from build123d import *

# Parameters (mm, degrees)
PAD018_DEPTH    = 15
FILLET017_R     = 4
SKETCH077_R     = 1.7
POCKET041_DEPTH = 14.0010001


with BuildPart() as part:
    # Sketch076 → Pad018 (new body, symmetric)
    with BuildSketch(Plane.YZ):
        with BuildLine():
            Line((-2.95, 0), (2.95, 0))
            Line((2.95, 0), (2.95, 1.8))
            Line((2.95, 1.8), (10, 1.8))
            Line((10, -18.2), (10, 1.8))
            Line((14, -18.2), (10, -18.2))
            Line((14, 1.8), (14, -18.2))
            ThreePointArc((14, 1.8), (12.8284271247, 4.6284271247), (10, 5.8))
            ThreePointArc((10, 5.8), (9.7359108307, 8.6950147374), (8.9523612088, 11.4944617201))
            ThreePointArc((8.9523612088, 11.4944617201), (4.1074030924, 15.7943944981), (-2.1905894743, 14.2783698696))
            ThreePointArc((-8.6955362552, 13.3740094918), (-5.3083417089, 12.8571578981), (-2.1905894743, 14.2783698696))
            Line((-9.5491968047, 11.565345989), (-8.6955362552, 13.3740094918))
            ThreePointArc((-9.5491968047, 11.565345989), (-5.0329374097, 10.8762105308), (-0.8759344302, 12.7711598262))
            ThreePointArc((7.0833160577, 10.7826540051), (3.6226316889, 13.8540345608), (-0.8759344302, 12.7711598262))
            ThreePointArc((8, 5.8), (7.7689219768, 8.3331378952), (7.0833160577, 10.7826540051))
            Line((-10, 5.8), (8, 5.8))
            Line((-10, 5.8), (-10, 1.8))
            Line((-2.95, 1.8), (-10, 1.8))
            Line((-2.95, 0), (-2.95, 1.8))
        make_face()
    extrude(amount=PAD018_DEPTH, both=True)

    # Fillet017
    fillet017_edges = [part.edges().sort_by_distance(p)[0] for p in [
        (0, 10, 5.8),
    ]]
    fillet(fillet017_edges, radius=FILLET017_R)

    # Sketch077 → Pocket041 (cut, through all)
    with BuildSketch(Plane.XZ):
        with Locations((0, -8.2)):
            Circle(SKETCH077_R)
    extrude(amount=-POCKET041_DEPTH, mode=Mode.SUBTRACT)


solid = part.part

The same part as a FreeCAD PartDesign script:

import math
import FreeCAD as App
import Part
import Sketcher

V = App.Vector
Q = App.Units.Quantity


def edges_at(feature, points):
    """Names of the edges that pass closest to the given points."""
    edges = feature.Shape.Edges
    near = lambda p: min(range(len(edges)), key=lambda i: edges[i].distToShape(Part.Vertex(*p))[0])
    return sorted({f"Edge{near(p) + 1}" for p in points})

doc = App.newDocument("Part")
body = doc.addObject("PartDesign::Body", "Body")

# Sketch on YZ plane
sketch1 = doc.addObject("Sketcher::SketchObject", "Sketch")
body.addObject(sketch1)
sketch1.AttachmentSupport = (doc.YZ_Plane, [""])
sketch1.MapMode = "FlatFace"
sketch1.addGeometry([
    Part.LineSegment(V(-2.95, 0, 0), V(2.95, 0, 0)),  # 0
    Part.LineSegment(V(2.95, 0, 0), V(2.95, 1.8, 0)),  # 1
    Part.LineSegment(V(2.95, 1.8, 0), V(10, 1.8, 0)),  # 2
    Part.LineSegment(V(10, 1.8, 0), V(10, -18.2, 0)),  # 3
    Part.LineSegment(V(10, -18.2, 0), V(14, -18.2, 0)),  # 4
    Part.LineSegment(V(14, -18.2, 0), V(14, 1.8, 0)),  # 5
    Part.ArcOfCircle(Part.Circle(V(10, 1.8, 0), V(0, 0, 1), 4), math.radians(0), math.radians(90)),  # 6
    Part.ArcOfCircle(Part.Circle(V(-6, 5.8, 0), V(0, 0, 1), 16), math.radians(0), math.radians(20.84885)),  # 7
    Part.ArcOfCircle(Part.Circle(V(2.410703, 9.003135, 0), V(0, 0, 1), 7), math.radians(20.84885), math.radians(131.096372)),  # 8
    Part.ArcOfCircle(Part.Circle(V(-6.134555, 18.8, 0), V(0, 0, 1), 6), math.radians(-115.266569), math.radians(-48.903628)),  # 9
    Part.LineSegment(V(-8.695536, 13.374009, 0), V(-9.549197, 11.565346, 0)),  # 10
    Part.ArcOfCircle(Part.Circle(V(-6.134555, 18.8, 0), V(0, 0, 1), 8), math.radians(-115.266569), math.radians(-48.903628)),  # 11
    Part.ArcOfCircle(Part.Circle(V(2.410703, 9.003135, 0), V(0, 0, 1), 5), math.radians(20.84885), math.radians(131.096372)),  # 12
    Part.ArcOfCircle(Part.Circle(V(-6, 5.8, 0), V(0, 0, 1), 14), math.radians(0), math.radians(20.84885)),  # 13
    Part.LineSegment(V(8, 5.8, 0), V(-10, 5.8, 0)),  # 14
    Part.LineSegment(V(-10, 5.8, 0), V(-10, 1.8, 0)),  # 15
    Part.LineSegment(V(-10, 1.8, 0), V(-2.95, 1.8, 0)),  # 16
    Part.LineSegment(V(-2.95, 1.8, 0), V(-2.95, 0, 0)),  # 17
], False)
sketch1.addConstraint([
    Sketcher.Constraint("Coincident", 0, 2, 1, 1),
    Sketcher.Constraint("Coincident", 1, 2, 2, 1),
    Sketcher.Constraint("Coincident", 2, 2, 3, 1),
    Sketcher.Constraint("Coincident", 3, 2, 4, 1),
    Sketcher.Constraint("Coincident", 4, 2, 5, 1),
    Sketcher.Constraint("Tangent", 5, 2, 6, 1),
    Sketcher.Constraint("Coincident", 6, 2, 7, 1),
    Sketcher.Constraint("Tangent", 7, 2, 8, 1),
    Sketcher.Constraint("Tangent", 8, 2, 9, 2),
    Sketcher.Constraint("Coincident", 9, 1, 10, 1),
    Sketcher.Constraint("Coincident", 10, 2, 11, 1),
    Sketcher.Constraint("Tangent", 11, 2, 12, 2),
    Sketcher.Constraint("Tangent", 12, 1, 13, 2),
    Sketcher.Constraint("Coincident", 13, 1, 14, 1),
    Sketcher.Constraint("Coincident", 14, 2, 15, 1),
    Sketcher.Constraint("Coincident", 15, 2, 16, 1),
    Sketcher.Constraint("Coincident", 16, 2, 17, 1),
    Sketcher.Constraint("Coincident", 17, 2, 0, 1),
    Sketcher.Constraint("Horizontal", 0),
    Sketcher.Constraint("Vertical", 1),
    Sketcher.Constraint("Horizontal", 2),
    Sketcher.Constraint("Vertical", 3),
    Sketcher.Constraint("Horizontal", 4),
    Sketcher.Constraint("Vertical", 5),
    Sketcher.Constraint("Horizontal", 14),
    Sketcher.Constraint("Vertical", 15),
    Sketcher.Constraint("Horizontal", 16),
    Sketcher.Constraint("Vertical", 17),
    Sketcher.Constraint("Coincident", 11, 3, 9, 3),
    Sketcher.Constraint("Coincident", 12, 3, 8, 3),
    Sketcher.Constraint("Coincident", 13, 3, 7, 3),
    Sketcher.Constraint("Coincident", 2, 2, 6, 3),
    Sketcher.Constraint("Symmetric", 0, 2, 17, 2, -1, 1),
    Sketcher.Constraint("Symmetric", 6, 2, 14, 2, -2),
    Sketcher.Constraint("Symmetric", 2, 2, 15, 2, -2),
    Sketcher.Constraint("Horizontal", 13, 3, 6, 2),
    Sketcher.Constraint("Radius", 6, Q("4 mm")),
    Sketcher.Constraint("Radius", 7, Q("16 mm")),
    Sketcher.Constraint("Radius", 8, Q("7 mm")),
    Sketcher.Constraint("Radius", 9, Q("6 mm")),
    Sketcher.Constraint("Radius", 11, Q("8 mm")),
    Sketcher.Constraint("DistanceX", 14, 2, 14, 1, Q("18 mm")),
    Sketcher.Constraint("DistanceY", 3, 2, 3, 1, Q("20 mm")),
    Sketcher.Constraint("DistanceX", 0, 1, 0, 2, Q("5.9 mm")),
    Sketcher.Constraint("DistanceY", 1, 1, 1, 2, Q("1.8 mm")),
    Sketcher.Constraint("DistanceY", 7, 3, 9, 3, Q("13 mm")),
    Sketcher.Constraint("DistanceX", 9, 1, 11, 2, Q("7.819602 mm")),
    Sketcher.Constraint("DistanceX", -1, 1, 7, 2, Q("8.952361 mm")),
    Sketcher.Constraint("DistanceX", 10, 2, 9, 1, Q("0.853661 mm")),
])
pad1 = doc.addObject("PartDesign::Pad", "Pad")
body.addObject(pad1)
pad1.Profile = sketch1
pad1.Length = 30
pad1.Midplane = True
doc.recompute()

fillet = doc.addObject("PartDesign::Fillet", "Fillet")
body.addObject(fillet)
fillet.Base = (pad1, edges_at(pad1, [(0, 10, 5.8)]))
fillet.Radius = 4

# Sketch on XZ plane
sketch2 = doc.addObject("Sketcher::SketchObject", "Sketch001")
body.addObject(sketch2)
sketch2.AttachmentSupport = (doc.XZ_Plane, [""])
sketch2.MapMode = "FlatFace"
sketch2.addGeometry(Part.Circle(V(0, -8.2, 0), V(0, 0, 1), 1.7), False)
sketch2.addConstraint([
    Sketcher.Constraint("PointOnObject", 0, 3, -2),
    Sketcher.Constraint("Diameter", 0, Q("3.4 mm")),
    Sketcher.Constraint("DistanceY", 0, 3, -1, 1, Q("8.2 mm")),
])
pocket1 = doc.addObject("PartDesign::Pocket", "Pocket")
body.addObject(pocket1)
pocket1.Profile = sketch2
pocket1.Type = "ThroughAll"

doc.recompute()
